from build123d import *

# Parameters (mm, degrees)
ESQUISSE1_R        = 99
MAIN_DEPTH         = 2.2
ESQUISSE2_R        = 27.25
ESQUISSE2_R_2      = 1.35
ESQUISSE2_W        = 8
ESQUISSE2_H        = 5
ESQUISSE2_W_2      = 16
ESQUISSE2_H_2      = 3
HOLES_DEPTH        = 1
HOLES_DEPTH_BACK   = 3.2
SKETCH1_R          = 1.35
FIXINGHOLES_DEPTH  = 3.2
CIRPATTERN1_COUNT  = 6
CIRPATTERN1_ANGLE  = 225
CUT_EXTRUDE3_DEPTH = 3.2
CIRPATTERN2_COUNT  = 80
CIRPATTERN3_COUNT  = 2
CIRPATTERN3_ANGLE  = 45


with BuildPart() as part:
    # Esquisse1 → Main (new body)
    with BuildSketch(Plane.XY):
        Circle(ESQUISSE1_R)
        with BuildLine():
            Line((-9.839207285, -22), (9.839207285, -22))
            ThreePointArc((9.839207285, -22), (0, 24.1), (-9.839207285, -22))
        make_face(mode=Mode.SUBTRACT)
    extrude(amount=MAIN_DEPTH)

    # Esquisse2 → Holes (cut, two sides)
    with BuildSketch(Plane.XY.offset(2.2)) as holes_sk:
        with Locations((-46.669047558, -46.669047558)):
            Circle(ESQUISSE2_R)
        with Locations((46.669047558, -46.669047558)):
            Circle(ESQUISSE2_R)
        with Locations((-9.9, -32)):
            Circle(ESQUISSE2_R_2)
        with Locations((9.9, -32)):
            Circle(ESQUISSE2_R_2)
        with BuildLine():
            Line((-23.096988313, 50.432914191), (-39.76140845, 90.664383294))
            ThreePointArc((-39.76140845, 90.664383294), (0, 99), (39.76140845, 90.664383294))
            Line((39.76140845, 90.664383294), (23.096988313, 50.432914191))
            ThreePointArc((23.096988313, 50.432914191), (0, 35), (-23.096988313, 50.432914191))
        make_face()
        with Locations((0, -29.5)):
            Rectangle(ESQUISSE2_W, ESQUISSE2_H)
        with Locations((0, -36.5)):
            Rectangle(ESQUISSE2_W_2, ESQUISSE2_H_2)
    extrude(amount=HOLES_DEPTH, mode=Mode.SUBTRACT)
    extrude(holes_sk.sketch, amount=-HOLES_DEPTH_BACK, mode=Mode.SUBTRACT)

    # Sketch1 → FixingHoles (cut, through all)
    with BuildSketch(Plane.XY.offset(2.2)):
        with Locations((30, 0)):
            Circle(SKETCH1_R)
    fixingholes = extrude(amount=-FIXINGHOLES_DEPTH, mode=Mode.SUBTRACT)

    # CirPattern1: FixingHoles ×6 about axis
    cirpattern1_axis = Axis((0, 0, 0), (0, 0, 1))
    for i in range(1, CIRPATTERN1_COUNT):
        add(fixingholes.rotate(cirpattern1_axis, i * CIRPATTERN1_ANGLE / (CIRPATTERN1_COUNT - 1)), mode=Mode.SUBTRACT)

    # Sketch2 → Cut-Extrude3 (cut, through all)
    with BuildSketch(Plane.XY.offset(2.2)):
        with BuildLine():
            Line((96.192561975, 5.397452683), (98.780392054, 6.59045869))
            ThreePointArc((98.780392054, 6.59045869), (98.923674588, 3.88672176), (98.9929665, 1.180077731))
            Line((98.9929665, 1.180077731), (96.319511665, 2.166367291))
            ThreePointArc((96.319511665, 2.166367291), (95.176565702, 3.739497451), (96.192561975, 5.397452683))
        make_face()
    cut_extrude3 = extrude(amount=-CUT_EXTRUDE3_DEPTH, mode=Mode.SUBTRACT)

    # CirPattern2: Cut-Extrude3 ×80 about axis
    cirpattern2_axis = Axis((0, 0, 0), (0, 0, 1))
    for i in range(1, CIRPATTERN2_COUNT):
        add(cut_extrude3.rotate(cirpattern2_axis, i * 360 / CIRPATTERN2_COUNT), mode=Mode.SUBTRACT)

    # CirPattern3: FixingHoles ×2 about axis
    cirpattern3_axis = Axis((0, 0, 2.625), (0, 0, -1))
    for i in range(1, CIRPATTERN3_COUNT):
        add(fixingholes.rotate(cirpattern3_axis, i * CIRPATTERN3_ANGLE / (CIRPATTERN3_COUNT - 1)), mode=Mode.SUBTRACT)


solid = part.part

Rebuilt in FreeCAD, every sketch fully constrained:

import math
import FreeCAD as App
import Part
import Sketcher
from FreeCAD import Vector
Q = App.Units.Quantity


def add_polygon(sketch, points):
    """Adds a closed chain of lines whose ends are joined by coincident constraints."""
    first, n = sketch.GeometryCount, len(points)
    for a, b in zip(points, points[1:] + points[:1]):
        sketch.addGeometry(Part.LineSegment(App.Vector(*a, 0), App.Vector(*b, 0)), False)
    for i in range(n):
        sketch.addConstraint(Sketcher.Constraint("Coincident", first + i, 2, first + (i + 1) % n, 1))

doc = App.newDocument("Part")
params = doc.addObject("Spreadsheet::Sheet", "Params")
for row, (alias, value) in enumerate([
    ("sketch1_diameter", "198 mm"),
    ("sketch1_radius", "24.1 mm"),
    ("pad1_length", "2.2 mm"),
    ("sketch2_radius", "25 mm"),
    ("sketch2_radius2", "99 mm"),
    ("sketch2_diameter", "54.5 mm"),
    ("sketch2_diameter2", "2.7 mm"),
    ("sketch2_width", "8 mm"),
    ("sketch3_diameter", "2.7 mm"),
    ("sketch4_radius", "99 mm"),
    ("sketch4_radius2", "1.75 mm"),
], start=1):
    params.set(f"A{row}", alias)
    params.set(f"B{row}", "=" + value)
    params.setAlias(f"B{row}", alias)

body = doc.addObject("PartDesign::Body", "Body")

# Sketch on XY plane
sketch1 = body.newObject("Sketcher::SketchObject", "Sketch")
sketch1.AttachmentSupport = (doc.getObject("XY_Plane"), [""])
sketch1.MapMode = "FlatFace"
sketch1.addGeometry(Part.Circle(Vector(0, 0, 0), Vector(0, 0, 1), 99), False)
sketch1.addGeometry(Part.LineSegment(Vector(9.839207, -22, 0), Vector(-9.839207, -22, 0)), False)
sketch1.addGeometry(Part.ArcOfCircle(Part.Circle(Vector(0, 0, 0), Vector(0, 0, 1), 24.1), math.radians(-65.904055), math.radians(245.904055)), False)
sketch1.addConstraint(Sketcher.Constraint("Coincident", 1, 1, 2, 1))
sketch1.addConstraint(Sketcher.Constraint("Coincident", 2, 2, 1, 2))
sketch1.addConstraint(Sketcher.Constraint("Horizontal", 1))
sketch1.addConstraint(Sketcher.Constraint("Coincident", 0, 3, -1, 1))
sketch1.addConstraint(Sketcher.Constraint("Coincident", 2, 3, -1, 1))
sketch1.addConstraint(Sketcher.Constraint("Diameter", 0, Q("198 mm")))
sketch1.addConstraint(Sketcher.Constraint("Radius", 2, Q("24.1 mm")))
sketch1.addConstraint(Sketcher.Constraint("DistanceY", 1, 1, -1, 1, Q("22 mm")))
sketch1.setExpression("Constraints[5]", "Params.sketch1_diameter")
sketch1.setExpression("Constraints[6]", "Params.sketch1_radius")
pad1 = body.newObject("PartDesign::Pad", "Pad")
pad1.Profile = sketch1
pad1.setExpression("Length", "Params.pad1_length")

# Sketch on XY plane
sketch2 = body.newObject("Sketcher::SketchObject", "Sketch001")
sketch2.AttachmentSupport = (doc.getObject("XY_Plane"), [""])
sketch2.MapMode = "FlatFace"
sketch2.AttachmentOffset = App.Placement(Vector(0, 0, 2.2), App.Rotation())
sketch2.addGeometry(Part.Circle(Vector(-46.669048, -46.669048, 0), Vector(0, 0, 1), 27.25), False)  # 0
sketch2.addGeometry(Part.Circle(Vector(46.669048, -46.669048, 0), Vector(0, 0, 1), 27.25), False)  # 1
sketch2.addGeometry(Part.Circle(Vector(-9.9, -32, 0), Vector(0, 0, 1), 1.35), False)  # 2
sketch2.addGeometry(Part.Circle(Vector(9.9, -32, 0), Vector(0, 0, 1), 1.35), False)  # 3
sketch2.addGeometry(Part.LineSegment(Vector(-39.761408, 90.664383, 0), Vector(-23.096988, 50.432914, 0)), False)  # 4
sketch2.addGeometry(Part.ArcOfCircle(Part.Circle(Vector(0, 60, 0), Vector(0, 0, 1), 25), math.radians(-157.5), math.radians(-22.5)), False)  # 5
sketch2.addGeometry(Part.LineSegment(Vector(23.096988, 50.432914, 0), Vector(39.761408, 90.664383, 0)), False)  # 6
sketch2.addGeometry(Part.ArcOfCircle(Part.Circle(Vector(0, 0, 0), Vector(0, 0, 1), 99), math.radians(66.319858), math.radians(113.680142)), False)  # 7
add_polygon(sketch2, [(-4, -27), (-4, -32), (4, -32), (4, -27)])  # lines 8-11
add_polygon(sketch2, [(-8, -35), (-8, -38), (8, -38), (8, -35)])  # lines 12-15
sketch2.addConstraint(Sketcher.Constraint("Tangent", 4, 2, 5, 1))
sketch2.addConstraint(Sketcher.Constraint("Tangent", 5, 2, 6, 1))
sketch2.addConstraint(Sketcher.Constraint("Coincident", 6, 2, 7, 1))
sketch2.addConstraint(Sketcher.Constraint("Coincident", 7, 2, 4, 1))
sketch2.addConstraint(Sketcher.Constraint("Vertical", 8))
sketch2.addConstraint(Sketcher.Constraint("Horizontal", 9))
sketch2.addConstraint(Sketcher.Constraint("Vertical", 10))
sketch2.addConstraint(Sketcher.Constraint("Horizontal", 11))
sketch2.addConstraint(Sketcher.Constraint("Vertical", 12))
sketch2.addConstraint(Sketcher.Constraint("Horizontal", 13))
sketch2.addConstraint(Sketcher.Constraint("Vertical", 14))
sketch2.addConstraint(Sketcher.Constraint("Horizontal", 15))
sketch2.addConstraint(Sketcher.Constraint("Coincident", 7, 3, -1, 1))
sketch2.addConstraint(Sketcher.Constraint("Equal", 0, 1))
sketch2.addConstraint(Sketcher.Constraint("Equal", 2, 3))
sketch2.addConstraint(Sketcher.Constraint("Symmetric", 0, 3, 1, 3, -2))
sketch2.addConstraint(Sketcher.Constraint("Symmetric", 2, 3, 3, 3, -2))
sketch2.addConstraint(Sketcher.Constraint("Symmetric", 4, 2, 5, 2, -2))
sketch2.addConstraint(Sketcher.Constraint("Horizontal", 3, 3, 8, 2))
sketch2.addConstraint(Sketcher.Constraint("Radius", 5, Q("25 mm")))
sketch2.addConstraint(Sketcher.Constraint("Radius", 7, Q("99 mm")))
sketch2.addConstraint(Sketcher.Constraint("Diameter", 0, Q("54.5 mm")))
sketch2.addConstraint(Sketcher.Constraint("Diameter", 2, Q("2.7 mm")))
sketch2.addConstraint(Sketcher.Constraint("DistanceX", 9, 1, 9, 2, Q("8 mm")))
sketch2.addConstraint(Sketcher.Constraint("DistanceX", 13, 1, 13, 2, Q("16 mm")))
sketch2.addConstraint(Sketcher.Constraint("DistanceY", 8, 2, 8, 1, Q("5 mm")))
sketch2.addConstraint(Sketcher.Constraint("DistanceY", 12, 2, 12, 1, Q("3 mm")))
sketch2.addConstraint(Sketcher.Constraint("DistanceY", 2, 3, -1, 1, Q("32 mm")))
sketch2.addConstraint(Sketcher.Constraint("DistanceY", -1, 1, 5, 3, Q("60 mm")))
sketch2.addConstraint(Sketcher.Constraint("DistanceX", 8, 2, -1, 1, Q("4 mm")))
sketch2.addConstraint(Sketcher.Constraint("DistanceX", 12, 2, -1, 1, Q("8 mm")))
sketch2.addConstraint(Sketcher.Constraint("DistanceY", 12, 2, -1, 1, Q("38 mm")))
sketch2.addConstraint(Sketcher.Constraint("Angle", 4, Q("-67.5 deg")))
sketch2.addConstraint(Sketcher.Constraint("DistanceX", 2, 3, -1, 1, Q("9.9 mm")))
sketch2.addConstraint(Sketcher.Constraint("DistanceX", 0, 3, 4, 2, Q("23.572059 mm")))
sketch2.addConstraint(Sketcher.Constraint("DistanceY", 0, 3, 4, 2, Q("97.101962 mm")))
sketch2.setExpression("Constraints[27]", "Params.sketch2_radius")
sketch2.setExpression("Constraints[28]", "Params.sketch2_radius2")
sketch2.setExpression("Constraints[29]", "Params.sketch2_diameter")
sketch2.setExpression("Constraints[30]", "Params.sketch2_diameter2")
sketch2.setExpression("Constraints[31]", "Params.sketch2_width")
pocket1 = body.newObject("PartDesign::Pocket", "Pocket")
pocket1.Profile = sketch2
pocket1.Type = "ThroughAll"
pocket1.Midplane = True

# Sketch on XY plane
sketch3 = body.newObject("Sketcher::SketchObject", "Sketch002")
sketch3.AttachmentSupport = (doc.getObject("XY_Plane"), [""])
sketch3.MapMode = "FlatFace"
sketch3.AttachmentOffset = App.Placement(Vector(0, 0, 2.2), App.Rotation())
sketch3.addGeometry(Part.Circle(Vector(30, 0, 0), Vector(0, 0, 1), 1.35), False)
sketch3.addConstraint(Sketcher.Constraint("PointOnObject", 0, 3, -1))
sketch3.addConstraint(Sketcher.Constraint("Diameter", 0, Q("2.7 mm")))
sketch3.addConstraint(Sketcher.Constraint("DistanceX", -1, 1, 0, 3, Q("30 mm")))
sketch3.setExpression("Constraints[1]", "Params.sketch3_diameter")
pocket2 = body.newObject("PartDesign::Pocket", "Pocket001")
pocket2.Profile = sketch3
pocket2.Type = "ThroughAll"
doc.recompute()

polarpattern = body.newObject("PartDesign::PolarPattern", "PolarPattern")
polarpattern.Originals = [pocket2]
polarpattern.Axis = (doc.getObject("Z_Axis"), [""])
polarpattern.Angle = 225
polarpattern.Occurrences = 6
body.Tip = polarpattern

# Sketch on XY plane
sketch4 = body.newObject("Sketcher::SketchObject", "Sketch003")
sketch4.AttachmentSupport = (doc.getObject("XY_Plane"), [""])
sketch4.MapMode = "FlatFace"
sketch4.AttachmentOffset = App.Placement(Vector(0, 0, 2.2), App.Rotation())
sketch4.addGeometry(Part.LineSegment(Vector(98.780392, 6.590459, 0), Vector(96.192562, 5.397453, 0)), False)
sketch4.addGeometry(Part.ArcOfCircle(Part.Circle(Vector(96.925217, 3.808202, 0), Vector(0, 0, 1), 1.75), math.radians(114.75), math.radians(249.75)), False)
sketch4.addGeometry(Part.LineSegment(Vector(96.319512, 2.166367, 0), Vector(98.992966, 1.180078, 0)), False)
sketch4.addGeometry(Part.ArcOfCircle(Part.Circle(Vector(0, 0, 0), Vector(0, 0, 1), 99), math.radians(0.682981), math.radians(3.817019)), False)
sketch4.addConstraint(Sketcher.Constraint("Tangent", 0, 2, 1, 1))
sketch4.addConstraint(Sketcher.Constraint("Tangent", 1, 2, 2, 1))
sketch4.addConstraint(Sketcher.Constraint("Coincident", 2, 2, 3, 1))
sketch4.addConstraint(Sketcher.Constraint("Coincident", 3, 2, 0, 1))
sketch4.addConstraint(Sketcher.Constraint("Coincident", 3, 3, -1, 1))
sketch4.addConstraint(Sketcher.Constraint("Equal", 0, 2))
sketch4.addConstraint(Sketcher.Constraint("Radius", 3, Q("99 mm")))
sketch4.addConstraint(Sketcher.Constraint("Radius", 1, Q("1.75 mm")))
sketch4.addConstraint(Sketcher.Constraint("Angle", 0, Q("-155.25 deg")))
sketch4.addConstraint(Sketcher.Constraint("Angle", 2, Q("-20.25 deg")))
sketch4.addConstraint(Sketcher.Constraint("DistanceX", -1, 1, 0, 2, Q("96.192562 mm")))
sketch4.setExpression("Constraints[6]", "Params.sketch4_radius")
sketch4.setExpression("Constraints[7]", "Params.sketch4_radius2")
pocket3 = body.newObject("PartDesign::Pocket", "Pocket002")
pocket3.Profile = sketch4
pocket3.Type = "ThroughAll"
doc.recompute()

polarpattern2 = body.newObject("PartDesign::PolarPattern", "PolarPattern001")
polarpattern2.Originals = [pocket3]
polarpattern2.Axis = (doc.getObject("Z_Axis"), [""])
polarpattern2.Angle = 360
polarpattern2.Occurrences = 80
body.Tip = polarpattern2
doc.recompute()

polarpattern3 = body.newObject("PartDesign::PolarPattern", "PolarPattern002")
polarpattern3.Originals = [pocket2]
polarpattern3.Axis = (doc.getObject("Z_Axis"), [""])
polarpattern3.Angle = 45
polarpattern3.Occurrences = 2
polarpattern3.Reversed = True
body.Tip = polarpattern3

doc.recompute()
